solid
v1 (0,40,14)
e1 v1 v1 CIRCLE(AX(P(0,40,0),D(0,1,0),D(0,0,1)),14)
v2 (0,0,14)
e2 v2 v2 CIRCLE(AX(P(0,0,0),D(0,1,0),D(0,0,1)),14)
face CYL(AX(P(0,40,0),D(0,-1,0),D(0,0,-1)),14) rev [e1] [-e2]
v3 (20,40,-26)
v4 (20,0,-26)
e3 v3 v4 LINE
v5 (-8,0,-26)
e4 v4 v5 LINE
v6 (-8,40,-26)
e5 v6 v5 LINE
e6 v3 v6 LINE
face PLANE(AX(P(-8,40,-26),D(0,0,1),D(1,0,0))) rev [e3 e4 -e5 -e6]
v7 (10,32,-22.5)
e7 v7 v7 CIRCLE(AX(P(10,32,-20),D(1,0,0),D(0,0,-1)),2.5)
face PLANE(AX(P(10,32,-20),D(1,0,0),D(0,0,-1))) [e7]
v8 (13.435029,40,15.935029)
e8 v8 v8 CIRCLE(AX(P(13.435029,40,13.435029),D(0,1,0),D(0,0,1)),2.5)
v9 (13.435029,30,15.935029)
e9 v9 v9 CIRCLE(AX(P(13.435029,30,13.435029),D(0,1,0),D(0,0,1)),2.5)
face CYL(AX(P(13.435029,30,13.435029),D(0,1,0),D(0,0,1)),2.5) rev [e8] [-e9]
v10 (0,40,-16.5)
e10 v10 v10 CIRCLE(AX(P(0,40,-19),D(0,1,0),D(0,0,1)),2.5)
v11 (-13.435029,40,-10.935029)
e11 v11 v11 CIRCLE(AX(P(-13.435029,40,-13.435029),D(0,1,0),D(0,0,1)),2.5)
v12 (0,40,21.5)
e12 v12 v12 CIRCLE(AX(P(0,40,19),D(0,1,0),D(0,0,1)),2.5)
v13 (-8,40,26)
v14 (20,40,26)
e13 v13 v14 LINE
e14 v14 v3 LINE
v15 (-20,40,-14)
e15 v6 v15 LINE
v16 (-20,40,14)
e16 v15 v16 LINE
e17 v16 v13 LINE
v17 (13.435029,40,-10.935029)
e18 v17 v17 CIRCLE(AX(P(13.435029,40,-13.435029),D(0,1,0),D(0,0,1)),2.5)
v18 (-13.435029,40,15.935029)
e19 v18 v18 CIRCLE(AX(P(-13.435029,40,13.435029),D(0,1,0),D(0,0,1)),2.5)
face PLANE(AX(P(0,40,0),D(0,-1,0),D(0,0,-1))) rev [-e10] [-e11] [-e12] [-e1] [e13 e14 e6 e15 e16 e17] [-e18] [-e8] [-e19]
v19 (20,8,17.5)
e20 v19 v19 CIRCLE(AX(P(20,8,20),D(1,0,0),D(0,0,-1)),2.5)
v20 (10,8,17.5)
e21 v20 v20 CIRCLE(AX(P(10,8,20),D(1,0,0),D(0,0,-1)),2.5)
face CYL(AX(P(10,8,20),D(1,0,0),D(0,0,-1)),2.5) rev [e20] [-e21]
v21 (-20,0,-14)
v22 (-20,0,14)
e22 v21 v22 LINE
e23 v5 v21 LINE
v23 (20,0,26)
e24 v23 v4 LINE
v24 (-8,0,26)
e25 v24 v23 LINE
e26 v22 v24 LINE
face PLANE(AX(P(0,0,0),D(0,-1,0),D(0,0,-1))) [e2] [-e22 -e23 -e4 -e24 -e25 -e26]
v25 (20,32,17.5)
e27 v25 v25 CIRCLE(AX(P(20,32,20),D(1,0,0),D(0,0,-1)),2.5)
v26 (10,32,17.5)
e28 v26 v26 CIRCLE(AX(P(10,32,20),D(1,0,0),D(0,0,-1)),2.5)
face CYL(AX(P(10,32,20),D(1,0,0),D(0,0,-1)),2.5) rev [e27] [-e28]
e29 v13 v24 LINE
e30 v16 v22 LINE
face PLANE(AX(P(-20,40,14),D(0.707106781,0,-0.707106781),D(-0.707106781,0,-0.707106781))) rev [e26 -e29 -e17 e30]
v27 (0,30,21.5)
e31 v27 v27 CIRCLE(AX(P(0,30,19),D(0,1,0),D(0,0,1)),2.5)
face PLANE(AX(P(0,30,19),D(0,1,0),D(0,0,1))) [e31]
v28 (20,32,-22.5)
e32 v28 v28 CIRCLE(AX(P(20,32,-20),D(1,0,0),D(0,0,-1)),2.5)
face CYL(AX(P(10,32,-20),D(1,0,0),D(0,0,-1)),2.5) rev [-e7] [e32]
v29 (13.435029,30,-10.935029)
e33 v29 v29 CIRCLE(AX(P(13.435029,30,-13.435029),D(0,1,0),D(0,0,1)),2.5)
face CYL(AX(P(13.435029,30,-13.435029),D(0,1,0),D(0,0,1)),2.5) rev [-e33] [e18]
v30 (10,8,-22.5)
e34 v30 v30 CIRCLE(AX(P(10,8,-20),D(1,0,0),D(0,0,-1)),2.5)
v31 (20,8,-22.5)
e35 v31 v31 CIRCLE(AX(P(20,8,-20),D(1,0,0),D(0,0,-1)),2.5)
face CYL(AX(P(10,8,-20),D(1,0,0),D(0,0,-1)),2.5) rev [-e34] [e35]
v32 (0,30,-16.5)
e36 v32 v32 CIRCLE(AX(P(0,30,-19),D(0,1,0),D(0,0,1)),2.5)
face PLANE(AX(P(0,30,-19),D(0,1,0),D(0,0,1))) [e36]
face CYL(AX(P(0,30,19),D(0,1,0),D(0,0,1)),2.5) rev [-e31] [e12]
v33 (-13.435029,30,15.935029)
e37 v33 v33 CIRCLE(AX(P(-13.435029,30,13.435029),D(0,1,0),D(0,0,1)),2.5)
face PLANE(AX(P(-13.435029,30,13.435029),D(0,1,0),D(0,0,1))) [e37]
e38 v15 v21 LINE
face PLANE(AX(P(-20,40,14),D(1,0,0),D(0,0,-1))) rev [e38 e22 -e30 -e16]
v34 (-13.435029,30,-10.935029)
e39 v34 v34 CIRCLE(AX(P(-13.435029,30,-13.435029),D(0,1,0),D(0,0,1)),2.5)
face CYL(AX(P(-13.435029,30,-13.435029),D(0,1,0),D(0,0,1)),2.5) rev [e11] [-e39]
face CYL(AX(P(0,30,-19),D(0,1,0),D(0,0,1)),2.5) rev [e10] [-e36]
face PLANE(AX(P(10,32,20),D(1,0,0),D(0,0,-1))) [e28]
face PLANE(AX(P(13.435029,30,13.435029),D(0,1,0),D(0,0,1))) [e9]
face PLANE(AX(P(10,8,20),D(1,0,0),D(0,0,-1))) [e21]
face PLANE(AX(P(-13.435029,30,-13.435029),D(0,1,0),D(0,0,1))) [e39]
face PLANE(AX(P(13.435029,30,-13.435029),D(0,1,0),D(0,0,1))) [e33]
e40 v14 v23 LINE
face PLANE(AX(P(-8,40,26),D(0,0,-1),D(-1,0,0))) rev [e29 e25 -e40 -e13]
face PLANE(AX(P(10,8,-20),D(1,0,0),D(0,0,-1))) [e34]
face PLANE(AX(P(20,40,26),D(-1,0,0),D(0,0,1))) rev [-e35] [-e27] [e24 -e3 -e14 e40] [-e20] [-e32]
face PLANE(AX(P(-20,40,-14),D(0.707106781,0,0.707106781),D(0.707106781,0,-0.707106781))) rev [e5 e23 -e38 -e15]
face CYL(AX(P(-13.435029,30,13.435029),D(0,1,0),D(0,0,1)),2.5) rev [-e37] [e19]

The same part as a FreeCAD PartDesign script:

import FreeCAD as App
import Part
import Sketcher
Q = App.Units.Quantity

doc = App.newDocument("Part")
params = doc.addObject("Spreadsheet::Sheet", "Params")
for row, (alias, value) in enumerate([
    ("sketch1_diameter", "28 mm"),
    ("sketch1_width", "28 mm"),
    ("sketch1_height", "52 mm"),
    ("pad1_length", "40 mm"),
    ("sketch2_diameter", "5 mm"),
    ("pocket1_length", "10 mm"),
    ("sketch3_diameter", "5 mm"),
    ("pocket2_length", "10 mm"),
], start=1):
    params.set(f"A{row}", alias)
    params.set(f"B{row}", "=" + value)
    params.setAlias(f"B{row}", alias)

body = doc.addObject("PartDesign::Body", "Body")

# Sketch on XZ plane
sketch1 = doc.addObject("Sketcher::SketchObject", "Sketch")
body.addObject(sketch1)
sketch1.AttachmentSupport = (doc.XZ_Plane, [""])
sketch1.MapMode = "FlatFace"
sketch1.addGeometry([
    Part.LineSegment(App.Vector(-8, -26, 0), App.Vector(-20, -14, 0)),  # 0
    Part.LineSegment(App.Vector(-20, -14, 0), App.Vector(-20, 14, 0)),  # 1
    Part.LineSegment(App.Vector(-20, 14, 0), App.Vector(-8, 26, 0)),  # 2
    Part.LineSegment(App.Vector(-8, 26, 0), App.Vector(20, 26, 0)),  # 3
    Part.LineSegment(App.Vector(20, 26, 0), App.Vector(20, -26, 0)),  # 4
    Part.LineSegment(App.Vector(20, -26, 0), App.Vector(-8, -26, 0)),  # 5
    Part.Circle(App.Vector(0, 0, 0), App.Vector(0, 0, 1), 14),  # 6
], False)
sketch1.addConstraint([
    Sketcher.Constraint("Coincident", 0, 2, 1, 1),
    Sketcher.Constraint("Coincident", 1, 2, 2, 1),
    Sketcher.Constraint("Coincident", 2, 2, 3, 1),
    Sketcher.Constraint("Coincident", 3, 2, 4, 1),
    Sketcher.Constraint("Coincident", 4, 2, 5, 1),
    Sketcher.Constraint("Coincident", 5, 2, 0, 1),
    Sketcher.Constraint("Vertical", 1),
    Sketcher.Constraint("Horizontal", 3),
    Sketcher.Constraint("Vertical", 4),
    Sketcher.Constraint("Horizontal", 5),
    Sketcher.Constraint("Coincident", 6, 3, -1, 1),
    Sketcher.Constraint("Symmetric", 2, 2, 5, 2, -1),
    Sketcher.Constraint("Perpendicular", 0, 2),
    Sketcher.Constraint("Equal", 5, 1),
    Sketcher.Constraint("Equal", 0, 2),
    Sketcher.Constraint("Diameter", 6, Q("28 mm")),
    Sketcher.Constraint("DistanceX", 3, 1, 3, 2, Q("28 mm")),
    Sketcher.Constraint("DistanceY", 4, 2, 4, 1, Q("52 mm")),
    Sketcher.Constraint("DistanceX", 0, 2, -1, 1, Q("20 mm")),
])
sketch1.setExpression("Constraints[15]", "Params.sketch1_diameter")
sketch1.setExpression("Constraints[16]", "Params.sketch1_width")
sketch1.setExpression("Constraints[17]", "Params.sketch1_height")
pad1 = doc.addObject("PartDesign::Pad", "Pad")
body.addObject(pad1)
pad1.Profile = sketch1
pad1.setExpression("Length", "Params.pad1_length")
pad1.Reversed = True

# Sketch on XZ plane
sketch2 = doc.addObject("Sketcher::SketchObject", "Sketch001")
body.addObject(sketch2)
sketch2.AttachmentSupport = (doc.XZ_Plane, [""])
sketch2.MapMode = "FlatFace"
sketch2.AttachmentOffset = App.Placement(App.Vector(0, 0, -40), App.Rotation())
sketch2.addGeometry([
    Part.Circle(App.Vector(0, -19, 0), App.Vector(0, 0, 1), 2.5),  # 0
    Part.Circle(App.Vector(13.4, -13.4, 0), App.Vector(0, 0, 1), 2.5),  # 1
    Part.Circle(App.Vector(13.4, 13.4, 0), App.Vector(0, 0, 1), 2.5),  # 2
    Part.Circle(App.Vector(0, 19, 0), App.Vector(0, 0, 1), 2.5),  # 3
    Part.Circle(App.Vector(-13.4, 13.4, 0), App.Vector(0, 0, 1), 2.5),  # 4
    Part.Circle(App.Vector(-13.4, -13.4, 0), App.Vector(0, 0, 1), 2.5),  # 5
], False)
sketch2.addConstraint([
    Sketcher.Constraint("Equal", 0, 1),
    Sketcher.Constraint("Equal", 1, 2),
    Sketcher.Constraint("Equal", 2, 3),
    Sketcher.Constraint("Equal", 3, 4),
    Sketcher.Constraint("Equal", 4, 5),
    Sketcher.Constraint("Symmetric", 0, 3, 3, 3, -1, 1),
    Sketcher.Constraint("Symmetric", 1, 3, 4, 3, -1, 1),
    Sketcher.Constraint("Symmetric", 2, 3, 5, 3, -1, 1),
    Sketcher.Constraint("Symmetric", 2, 3, 4, 3, -2),
    Sketcher.Constraint("PointOnObject", 0, 3, -2),
    Sketcher.Constraint("Diameter", 0, Q("5 mm")),
    Sketcher.Constraint("DistanceY", 0, 3, -1, 1, Q("19 mm")),
    Sketcher.Constraint("DistanceX", -1, 1, 1, 3, Q("13.435029 mm")),
    Sketcher.Constraint("DistanceY", 1, 3, -1, 1, Q("13.435029 mm")),
])
sketch2.setExpression("Constraints[10]", "Params.sketch2_diameter")
pocket1 = doc.addObject("PartDesign::Pocket", "Pocket")
body.addObject(pocket1)
pocket1.Profile = sketch2
pocket1.setExpression("Length", "Params.pocket1_length")
pocket1.Reversed = True

# Sketch on YZ plane
sketch3 = doc.addObject("Sketcher::SketchObject", "Sketch002")
body.addObject(sketch3)
sketch3.AttachmentSupport = (doc.YZ_Plane, [""])
sketch3.MapMode = "FlatFace"
sketch3.AttachmentOffset = App.Placement(App.Vector(0, 0, 20), App.Rotation())
sketch3.addGeometry([
    Part.Circle(App.Vector(32, 20, 0), App.Vector(0, 0, 1), 2.5),
    Part.Circle(App.Vector(32, -20, 0), App.Vector(0, 0, 1), 2.5),
    Part.Circle(App.Vector(8, -20, 0), App.Vector(0, 0, 1), 2.5),
    Part.Circle(App.Vector(8, 20, 0), App.Vector(0, 0, 1), 2.5),
], False)
sketch3.addConstraint([
    Sketcher.Constraint("Equal", 0, 1),
    Sketcher.Constraint("Equal", 1, 2),
    Sketcher.Constraint("Equal", 2, 3),
    Sketcher.Constraint("Symmetric", 0, 3, 1, 3, -1),
    Sketcher.Constraint("Symmetric", 2, 3, 3, 3, -1),
    Sketcher.Constraint("Horizontal", 1, 3, 2, 3),
    Sketcher.Constraint("Diameter", 0, Q("5 mm")),
    Sketcher.Constraint("DistanceX", -1, 1, 0, 3, Q("32 mm")),
    Sketcher.Constraint("DistanceY", -1, 1, 0, 3, Q("20 mm")),
    Sketcher.Constraint("DistanceX", -1, 1, 2, 3, Q("8 mm")),
])
sketch3.setExpression("Constraints[6]", "Params.sketch3_diameter")
pocket2 = doc.addObject("PartDesign::Pocket", "Pocket001")
body.addObject(pocket2)
pocket2.Profile = sketch3
pocket2.setExpression("Length", "Params.pocket2_length")

doc.recompute()
